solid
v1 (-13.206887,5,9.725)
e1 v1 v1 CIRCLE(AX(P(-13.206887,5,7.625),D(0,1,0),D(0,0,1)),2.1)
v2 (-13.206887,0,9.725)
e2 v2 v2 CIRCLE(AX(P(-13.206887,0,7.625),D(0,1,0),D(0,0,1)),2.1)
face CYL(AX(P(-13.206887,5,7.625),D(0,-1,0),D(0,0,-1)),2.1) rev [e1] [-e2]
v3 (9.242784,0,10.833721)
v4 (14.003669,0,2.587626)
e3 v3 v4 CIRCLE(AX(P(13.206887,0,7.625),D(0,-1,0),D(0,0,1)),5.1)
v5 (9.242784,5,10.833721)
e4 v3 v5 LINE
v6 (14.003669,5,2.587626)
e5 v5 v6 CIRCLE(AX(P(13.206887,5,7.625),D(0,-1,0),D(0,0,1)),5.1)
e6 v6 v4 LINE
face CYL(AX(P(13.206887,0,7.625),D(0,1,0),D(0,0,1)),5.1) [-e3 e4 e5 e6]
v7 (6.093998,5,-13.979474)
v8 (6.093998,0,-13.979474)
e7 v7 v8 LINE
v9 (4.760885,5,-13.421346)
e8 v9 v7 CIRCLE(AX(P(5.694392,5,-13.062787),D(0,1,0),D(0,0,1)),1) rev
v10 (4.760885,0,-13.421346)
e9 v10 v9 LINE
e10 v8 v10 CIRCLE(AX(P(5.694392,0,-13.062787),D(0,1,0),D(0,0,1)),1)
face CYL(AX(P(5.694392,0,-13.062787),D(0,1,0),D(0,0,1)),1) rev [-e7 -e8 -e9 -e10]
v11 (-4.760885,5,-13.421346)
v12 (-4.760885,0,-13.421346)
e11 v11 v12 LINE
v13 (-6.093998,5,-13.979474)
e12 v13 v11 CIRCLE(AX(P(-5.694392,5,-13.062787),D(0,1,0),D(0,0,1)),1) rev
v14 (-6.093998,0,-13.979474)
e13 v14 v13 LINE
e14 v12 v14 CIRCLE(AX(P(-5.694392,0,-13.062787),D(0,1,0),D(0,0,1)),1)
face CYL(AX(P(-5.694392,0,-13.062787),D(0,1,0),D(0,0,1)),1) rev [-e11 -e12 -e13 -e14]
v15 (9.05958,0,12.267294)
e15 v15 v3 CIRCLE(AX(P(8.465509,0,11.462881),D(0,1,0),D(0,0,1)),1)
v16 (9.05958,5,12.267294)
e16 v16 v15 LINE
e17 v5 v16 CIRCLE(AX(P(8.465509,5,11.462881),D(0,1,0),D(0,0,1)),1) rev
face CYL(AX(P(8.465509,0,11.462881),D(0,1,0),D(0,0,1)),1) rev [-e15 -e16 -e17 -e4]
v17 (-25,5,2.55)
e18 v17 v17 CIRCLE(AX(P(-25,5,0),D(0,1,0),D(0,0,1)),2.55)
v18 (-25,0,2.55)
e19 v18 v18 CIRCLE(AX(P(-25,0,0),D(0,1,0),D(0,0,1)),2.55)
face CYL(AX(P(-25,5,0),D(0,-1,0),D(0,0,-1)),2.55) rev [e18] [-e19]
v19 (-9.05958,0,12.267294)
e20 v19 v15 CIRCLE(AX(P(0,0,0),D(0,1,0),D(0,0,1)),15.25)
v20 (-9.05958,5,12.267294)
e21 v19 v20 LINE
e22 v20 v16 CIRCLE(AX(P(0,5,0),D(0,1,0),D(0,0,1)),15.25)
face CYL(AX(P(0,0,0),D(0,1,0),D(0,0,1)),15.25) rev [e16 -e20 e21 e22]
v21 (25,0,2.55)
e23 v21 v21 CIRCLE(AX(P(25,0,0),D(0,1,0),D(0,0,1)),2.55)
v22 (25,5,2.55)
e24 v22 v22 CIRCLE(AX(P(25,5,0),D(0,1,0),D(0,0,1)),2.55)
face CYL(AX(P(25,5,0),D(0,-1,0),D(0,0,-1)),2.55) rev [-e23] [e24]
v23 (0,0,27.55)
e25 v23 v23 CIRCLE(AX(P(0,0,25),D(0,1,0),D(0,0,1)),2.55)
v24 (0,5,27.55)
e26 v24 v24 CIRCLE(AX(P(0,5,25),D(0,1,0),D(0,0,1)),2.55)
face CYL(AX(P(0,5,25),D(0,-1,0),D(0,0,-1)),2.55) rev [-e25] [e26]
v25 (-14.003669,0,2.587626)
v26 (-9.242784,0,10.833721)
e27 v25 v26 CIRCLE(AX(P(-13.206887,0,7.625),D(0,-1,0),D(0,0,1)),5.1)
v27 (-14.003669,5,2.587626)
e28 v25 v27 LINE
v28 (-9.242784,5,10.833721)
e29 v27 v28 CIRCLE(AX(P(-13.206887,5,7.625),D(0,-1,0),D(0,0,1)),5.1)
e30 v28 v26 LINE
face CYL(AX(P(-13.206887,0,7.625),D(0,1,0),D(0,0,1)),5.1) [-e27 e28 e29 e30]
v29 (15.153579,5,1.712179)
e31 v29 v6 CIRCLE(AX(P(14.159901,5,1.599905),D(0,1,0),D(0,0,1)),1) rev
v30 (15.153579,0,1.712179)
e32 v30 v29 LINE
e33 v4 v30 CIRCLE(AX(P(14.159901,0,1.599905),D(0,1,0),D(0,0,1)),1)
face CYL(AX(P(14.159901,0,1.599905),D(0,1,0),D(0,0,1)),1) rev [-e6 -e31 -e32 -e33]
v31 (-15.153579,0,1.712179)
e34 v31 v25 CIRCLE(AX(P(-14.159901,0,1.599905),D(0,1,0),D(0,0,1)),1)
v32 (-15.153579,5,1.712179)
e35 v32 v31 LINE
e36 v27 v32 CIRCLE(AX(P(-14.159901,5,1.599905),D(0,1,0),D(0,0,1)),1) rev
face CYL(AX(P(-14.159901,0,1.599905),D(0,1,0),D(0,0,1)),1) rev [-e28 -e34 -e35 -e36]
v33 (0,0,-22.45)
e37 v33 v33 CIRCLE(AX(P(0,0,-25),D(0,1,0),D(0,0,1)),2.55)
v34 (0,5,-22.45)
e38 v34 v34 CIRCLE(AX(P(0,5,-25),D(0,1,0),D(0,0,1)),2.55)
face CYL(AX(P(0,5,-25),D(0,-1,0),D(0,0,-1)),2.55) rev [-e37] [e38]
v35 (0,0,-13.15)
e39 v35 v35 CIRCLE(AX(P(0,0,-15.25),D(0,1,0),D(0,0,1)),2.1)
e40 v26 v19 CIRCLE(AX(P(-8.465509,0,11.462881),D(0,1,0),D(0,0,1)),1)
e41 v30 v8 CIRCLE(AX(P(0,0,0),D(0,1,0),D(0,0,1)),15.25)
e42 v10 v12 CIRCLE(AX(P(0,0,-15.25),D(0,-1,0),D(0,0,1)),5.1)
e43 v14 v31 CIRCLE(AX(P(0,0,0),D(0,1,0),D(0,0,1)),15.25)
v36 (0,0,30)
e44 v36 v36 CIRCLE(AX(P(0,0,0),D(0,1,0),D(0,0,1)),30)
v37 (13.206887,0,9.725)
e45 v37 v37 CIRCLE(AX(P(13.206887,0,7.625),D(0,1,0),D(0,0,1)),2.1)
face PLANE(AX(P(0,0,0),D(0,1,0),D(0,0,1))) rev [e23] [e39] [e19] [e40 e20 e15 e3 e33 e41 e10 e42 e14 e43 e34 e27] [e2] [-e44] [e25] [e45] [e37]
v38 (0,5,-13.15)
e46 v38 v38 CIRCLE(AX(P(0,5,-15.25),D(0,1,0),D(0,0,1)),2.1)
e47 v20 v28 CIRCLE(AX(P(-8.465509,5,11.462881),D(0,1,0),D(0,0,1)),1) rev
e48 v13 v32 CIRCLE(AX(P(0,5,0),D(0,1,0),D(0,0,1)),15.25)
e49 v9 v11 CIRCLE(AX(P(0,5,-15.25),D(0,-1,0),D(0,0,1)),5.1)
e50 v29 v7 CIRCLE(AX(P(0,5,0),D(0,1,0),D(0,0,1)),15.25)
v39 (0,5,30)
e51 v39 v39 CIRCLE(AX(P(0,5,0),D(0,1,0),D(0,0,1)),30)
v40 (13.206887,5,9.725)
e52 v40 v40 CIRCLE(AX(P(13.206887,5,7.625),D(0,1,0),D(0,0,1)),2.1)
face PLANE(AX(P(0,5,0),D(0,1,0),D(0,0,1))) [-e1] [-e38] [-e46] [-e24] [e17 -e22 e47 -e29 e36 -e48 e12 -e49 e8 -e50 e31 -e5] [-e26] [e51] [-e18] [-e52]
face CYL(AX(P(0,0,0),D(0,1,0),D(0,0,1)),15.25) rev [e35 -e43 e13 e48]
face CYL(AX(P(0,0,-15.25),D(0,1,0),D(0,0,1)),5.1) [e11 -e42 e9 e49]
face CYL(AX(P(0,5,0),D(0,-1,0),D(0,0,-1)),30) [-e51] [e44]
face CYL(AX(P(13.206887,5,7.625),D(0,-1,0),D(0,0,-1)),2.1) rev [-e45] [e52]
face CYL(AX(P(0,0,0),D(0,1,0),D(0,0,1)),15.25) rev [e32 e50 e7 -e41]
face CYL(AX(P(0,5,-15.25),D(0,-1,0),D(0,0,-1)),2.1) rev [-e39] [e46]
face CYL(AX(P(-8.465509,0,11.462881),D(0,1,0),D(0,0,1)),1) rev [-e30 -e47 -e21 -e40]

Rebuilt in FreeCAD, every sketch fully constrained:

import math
import FreeCAD as App
import Part
import Sketcher

V = App.Vector
Q = App.Units.Quantity


def edges_at(feature, points):
    """Names of the edges that pass closest to the given points."""
    edges = feature.Shape.Edges
    near = lambda p: min(range(len(edges)), key=lambda i: edges[i].distToShape(Part.Vertex(*p))[0])
    return sorted({f"Edge{near(p) + 1}" for p in points})

doc = App.newDocument("Part")
body = doc.addObject("PartDesign::Body", "Body")

sketch1 = body.newObject("Sketcher::SketchObject", "Sketch")
sketch1.AttachmentSupport = (doc.getObject("XZ_Plane"), [""])
sketch1.MapMode = "FlatFace"
sketch1.addGeometry([
    Part.Circle(V(0, 0, 0), V(0, 0, 1), 30),
    Part.Circle(V(-13.206887, 7.625, 0), V(0, 0, 1), 2.1),
    Part.Circle(V(0, 25, 0), V(0, 0, 1), 2.55),
    Part.Circle(V(13.206887, 7.625, 0), V(0, 0, 1), 2.1),
    Part.Circle(V(-25, 0, 0), V(0, 0, 1), 2.55),
    Part.Circle(V(0, 0, 0), V(0, 0, 1), 10),
    Part.Circle(V(25, 0, 0), V(0, 0, 1), 2.55),
    Part.Circle(V(0, -15.25, 0), V(0, 0, 1), 2.1),
    Part.Circle(V(0, -25, 0), V(0, 0, 1), 2.55),
], False)
sketch1.addConstraint([
    Sketcher.Constraint("Coincident", 0, 3, -1, 1),
    Sketcher.Constraint("Coincident", 5, 3, -1, 1),
    Sketcher.Constraint("Equal", 1, 3),
    Sketcher.Constraint("Equal", 2, 4),
    Sketcher.Constraint("Equal", 4, 6),
    Sketcher.Constraint("Equal", 3, 7),
    Sketcher.Constraint("Equal", 6, 8),
    Sketcher.Constraint("Symmetric", 4, 3, 6, 3, -1, 1),
    Sketcher.Constraint("Symmetric", 2, 3, 8, 3, -1, 1),
    Sketcher.Constraint("Symmetric", 1, 3, 3, 3, -2),
    Sketcher.Constraint("PointOnObject", 2, 3, -2),
    Sketcher.Constraint("PointOnObject", 4, 3, -1),
    Sketcher.Constraint("PointOnObject", 7, 3, -2),
    Sketcher.Constraint("Diameter", 0, Q("60 mm")),
    Sketcher.Constraint("Diameter", 5, Q("20 mm")),
    Sketcher.Constraint("Diameter", 1, Q("4.2 mm")),
    Sketcher.Constraint("Diameter", 2, Q("5.1 mm")),
    Sketcher.Constraint("DistanceY", -1, 1, 2, 3, Q("25 mm")),
    Sketcher.Constraint("DistanceX", 4, 3, -1, 1, Q("25 mm")),
    Sketcher.Constraint("DistanceY", 7, 3, -1, 1, Q("15.25 mm")),
    Sketcher.Constraint("DistanceY", -1, 1, 1, 3, Q("7.625 mm")),
    Sketcher.Constraint("DistanceX", 1, 3, -1, 1, Q("13.206887 mm")),
])
pad1 = body.newObject("PartDesign::Pad", "Pad")
pad1.Profile = sketch1
pad1.Length = 5
pad1.Reversed = True

sketch2 = body.newObject("Sketcher::SketchObject", "Sketch001")
sketch2.AttachmentSupport = (doc.getObject("XZ_Plane"), [""])
sketch2.MapMode = "FlatFace"
sketch2.AttachmentOffset = App.Placement(V(0, 0, -5), App.Rotation())
sketch2.addGeometry([
    Part.ArcOfCircle(Part.Circle(V(0, -15.25, 0), V(0, 0, 1), 5.1), math.radians(9.625823), math.radians(170.374177)),
    Part.ArcOfCircle(Part.Circle(V(0, 0, 0), V(0, 0, 1), 15.25), math.radians(169.251646), math.radians(250.748354)),
    Part.ArcOfCircle(Part.Circle(V(-13.206887, 7.625, 0), V(0, 0, 1), 5.1), math.radians(-110.374177), math.radians(50.374177)),
    Part.ArcOfCircle(Part.Circle(V(0, 0, 0), V(0, 0, 1), 15.25), math.radians(49.251646), math.radians(130.748354)),
    Part.ArcOfCircle(Part.Circle(V(13.206887, 7.625, 0), V(0, 0, 1), 5.1), math.radians(129.625823), math.radians(290.374177)),
    Part.ArcOfCircle(Part.Circle(V(0, 0, 0), V(0, 0, 1), 15.25), math.radians(-70.748354), math.radians(10.748354)),
], False)
sketch2.addConstraint([
    Sketcher.Constraint("Coincident", 0, 2, 1, 2),
    Sketcher.Constraint("Coincident", 1, 1, 2, 1),
    Sketcher.Constraint("Coincident", 2, 2, 3, 2),
    Sketcher.Constraint("Coincident", 3, 1, 4, 1),
    Sketcher.Constraint("Coincident", 4, 2, 5, 2),
    Sketcher.Constraint("Coincident", 5, 1, 0, 1),
    Sketcher.Constraint("Coincident", 1, 3, -1, 1),
    Sketcher.Constraint("Coincident", 3, 3, -1, 1),
    Sketcher.Constraint("Coincident", 5, 3, -1, 1),
    Sketcher.Constraint("Equal", 0, 2),
    Sketcher.Constraint("Equal", 1, 3),
    Sketcher.Constraint("Equal", 2, 4),
    Sketcher.Constraint("Equal", 3, 5),
    Sketcher.Constraint("Symmetric", 2, 3, 4, 3, -2),
    Sketcher.Constraint("PointOnObject", 0, 3, -2),
    Sketcher.Constraint("Radius", 0, Q("5.1 mm")),
    Sketcher.Constraint("Radius", 1, Q("15.25 mm")),
    Sketcher.Constraint("DistanceY", 0, 3, -1, 1, Q("15.25 mm")),
    Sketcher.Constraint("DistanceY", -1, 1, 2, 3, Q("7.625 mm")),
    Sketcher.Constraint("DistanceX", 1, 1, -1, 1, Q("14.98245 mm")),
])
pocket1 = body.newObject("PartDesign::Pocket", "Pocket")
pocket1.Profile = sketch2
pocket1.Type = "ThroughAll"
pocket1.Reversed = True
doc.recompute()

fillet = body.newObject("PartDesign::Fillet", "Fillet")
fillet.Base = (pocket1, edges_at(pocket1, [
    (-14.982, 2.5, 2.844),
    (-5.028, 2.5, -14.397),
    (5.028, 2.5, -14.397),
    (14.982, 2.5, 2.844),
    (9.954, 2.5, 11.553),
    (-9.954, 2.5, 11.553),
]))
fillet.Radius = 1

doc.recompute()
